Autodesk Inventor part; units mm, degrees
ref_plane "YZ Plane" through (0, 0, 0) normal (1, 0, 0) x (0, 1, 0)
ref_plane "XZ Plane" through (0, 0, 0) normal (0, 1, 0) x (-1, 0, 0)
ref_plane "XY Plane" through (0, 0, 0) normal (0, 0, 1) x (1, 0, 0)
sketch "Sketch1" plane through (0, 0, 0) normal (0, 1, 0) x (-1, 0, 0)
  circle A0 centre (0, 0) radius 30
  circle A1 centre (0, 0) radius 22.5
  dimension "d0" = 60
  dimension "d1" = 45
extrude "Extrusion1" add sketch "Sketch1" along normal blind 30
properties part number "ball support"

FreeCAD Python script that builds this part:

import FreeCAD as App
import Part
import Sketcher

V = App.Vector

doc = App.newDocument("Part")
body = doc.addObject("PartDesign::Body", "Body")

# Sketch on XZ plane
sketch1 = body.newObject("Sketcher::SketchObject", "Sketch")
sketch1.AttachmentSupport = (doc.getObject("XZ_Plane"), [""])
sketch1.MapMode = "FlatFace"
sketch1.addGeometry([
    Part.Circle(V(0, 0, 0), V(0, 0, 1), 30),
    Part.Circle(V(0, 0, 0), V(0, 0, 1), 22.5),
], False)
sketch1.addConstraint([
    Sketcher.Constraint("Coincident", 0, 3, -1, 1),
    Sketcher.Constraint("Coincident", 1, 3, -1, 1),
    Sketcher.Constraint("Diameter", 0, 60.0),
    Sketcher.Constraint("Diameter", 1, 45.0),
])
pad1 = body.newObject("PartDesign::Pad", "Pad")
pad1.Profile = sketch1
pad1.Length = 30
pad1.Reversed = True

doc.recompute()
